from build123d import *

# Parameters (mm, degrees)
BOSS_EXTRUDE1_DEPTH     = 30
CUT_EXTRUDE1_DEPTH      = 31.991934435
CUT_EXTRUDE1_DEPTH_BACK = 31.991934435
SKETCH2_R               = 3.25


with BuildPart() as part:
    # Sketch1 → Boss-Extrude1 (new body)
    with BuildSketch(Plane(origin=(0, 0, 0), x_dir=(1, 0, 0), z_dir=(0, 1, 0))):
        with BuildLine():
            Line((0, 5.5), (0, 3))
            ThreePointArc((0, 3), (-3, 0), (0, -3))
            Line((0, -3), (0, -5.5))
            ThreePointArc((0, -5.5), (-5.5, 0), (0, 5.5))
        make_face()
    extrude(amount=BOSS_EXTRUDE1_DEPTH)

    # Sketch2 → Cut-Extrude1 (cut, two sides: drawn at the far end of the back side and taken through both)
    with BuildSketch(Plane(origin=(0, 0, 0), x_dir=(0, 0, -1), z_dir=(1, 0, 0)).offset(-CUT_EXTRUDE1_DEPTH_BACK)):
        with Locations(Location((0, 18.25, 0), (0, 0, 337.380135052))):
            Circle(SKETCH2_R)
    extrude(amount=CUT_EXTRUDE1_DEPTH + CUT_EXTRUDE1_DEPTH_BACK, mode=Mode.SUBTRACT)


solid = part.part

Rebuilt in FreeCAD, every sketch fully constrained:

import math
import FreeCAD as App
import Part
import Sketcher

V = App.Vector
Q = App.Units.Quantity

doc = App.newDocument("Part")
body = doc.addObject("PartDesign::Body", "Body")

# Sketch on XZ plane
sketch1 = doc.addObject("Sketcher::SketchObject", "Sketch")
body.addObject(sketch1)
sketch1.AttachmentSupport = (doc.XZ_Plane, [""])
sketch1.MapMode = "FlatFace"
sketch1.addGeometry(Part.LineSegment(V(0, -3, 0), V(0, -5.5, 0)), False)
sketch1.addGeometry(Part.ArcOfCircle(Part.Circle(V(0, 0, 0), V(0, 0, 1), 5.5), math.radians(90), math.radians(270)), False)
sketch1.addGeometry(Part.LineSegment(V(0, 5.5, 0), V(0, 3, 0)), False)
sketch1.addGeometry(Part.ArcOfCircle(Part.Circle(V(0, 0, 0), V(0, 0, 1), 3), math.radians(90), math.radians(270)), False)
sketch1.addConstraint(Sketcher.Constraint("Coincident", 0, 2, 1, 2))
sketch1.addConstraint(Sketcher.Constraint("Coincident", 1, 1, 2, 1))
sketch1.addConstraint(Sketcher.Constraint("Coincident", 2, 2, 3, 1))
sketch1.addConstraint(Sketcher.Constraint("Coincident", 3, 2, 0, 1))
sketch1.addConstraint(Sketcher.Constraint("Vertical", 0))
sketch1.addConstraint(Sketcher.Constraint("Vertical", 2))
sketch1.addConstraint(Sketcher.Constraint("Coincident", 1, 3, -1, 1))
sketch1.addConstraint(Sketcher.Constraint("Coincident", 3, 3, -1, 1))
sketch1.addConstraint(Sketcher.Constraint("PointOnObject", 0, 2, -2))
sketch1.addConstraint(Sketcher.Constraint("PointOnObject", 1, 1, -2))
sketch1.addConstraint(Sketcher.Constraint("Radius", 3, Q("3 mm")))
sketch1.addConstraint(Sketcher.Constraint("Radius", 1, Q("5.5 mm")))
pad1 = doc.addObject("PartDesign::Pad", "Pad")
body.addObject(pad1)
pad1.Profile = sketch1
pad1.Length = 30
pad1.Reversed = True

# Sketch on YZ plane
sketch2 = doc.addObject("Sketcher::SketchObject", "Sketch001")
body.addObject(sketch2)
sketch2.AttachmentSupport = (doc.YZ_Plane, [""])
sketch2.MapMode = "FlatFace"
sketch2.addGeometry(Part.Circle(V(18.2, 0, 0), V(0, 0, 1), 3.2), False)
sketch2.addConstraint(Sketcher.Constraint("PointOnObject", 0, 3, -1))
sketch2.addConstraint(Sketcher.Constraint("Diameter", 0, Q("6.5 mm")))
sketch2.addConstraint(Sketcher.Constraint("DistanceX", -1, 1, 0, 3, Q("18.25 mm")))
pocket1 = doc.addObject("PartDesign::Pocket", "Pocket")
body.addObject(pocket1)
pocket1.Profile = sketch2
pocket1.Type = "ThroughAll"
pocket1.Midplane = True

doc.recompute()
